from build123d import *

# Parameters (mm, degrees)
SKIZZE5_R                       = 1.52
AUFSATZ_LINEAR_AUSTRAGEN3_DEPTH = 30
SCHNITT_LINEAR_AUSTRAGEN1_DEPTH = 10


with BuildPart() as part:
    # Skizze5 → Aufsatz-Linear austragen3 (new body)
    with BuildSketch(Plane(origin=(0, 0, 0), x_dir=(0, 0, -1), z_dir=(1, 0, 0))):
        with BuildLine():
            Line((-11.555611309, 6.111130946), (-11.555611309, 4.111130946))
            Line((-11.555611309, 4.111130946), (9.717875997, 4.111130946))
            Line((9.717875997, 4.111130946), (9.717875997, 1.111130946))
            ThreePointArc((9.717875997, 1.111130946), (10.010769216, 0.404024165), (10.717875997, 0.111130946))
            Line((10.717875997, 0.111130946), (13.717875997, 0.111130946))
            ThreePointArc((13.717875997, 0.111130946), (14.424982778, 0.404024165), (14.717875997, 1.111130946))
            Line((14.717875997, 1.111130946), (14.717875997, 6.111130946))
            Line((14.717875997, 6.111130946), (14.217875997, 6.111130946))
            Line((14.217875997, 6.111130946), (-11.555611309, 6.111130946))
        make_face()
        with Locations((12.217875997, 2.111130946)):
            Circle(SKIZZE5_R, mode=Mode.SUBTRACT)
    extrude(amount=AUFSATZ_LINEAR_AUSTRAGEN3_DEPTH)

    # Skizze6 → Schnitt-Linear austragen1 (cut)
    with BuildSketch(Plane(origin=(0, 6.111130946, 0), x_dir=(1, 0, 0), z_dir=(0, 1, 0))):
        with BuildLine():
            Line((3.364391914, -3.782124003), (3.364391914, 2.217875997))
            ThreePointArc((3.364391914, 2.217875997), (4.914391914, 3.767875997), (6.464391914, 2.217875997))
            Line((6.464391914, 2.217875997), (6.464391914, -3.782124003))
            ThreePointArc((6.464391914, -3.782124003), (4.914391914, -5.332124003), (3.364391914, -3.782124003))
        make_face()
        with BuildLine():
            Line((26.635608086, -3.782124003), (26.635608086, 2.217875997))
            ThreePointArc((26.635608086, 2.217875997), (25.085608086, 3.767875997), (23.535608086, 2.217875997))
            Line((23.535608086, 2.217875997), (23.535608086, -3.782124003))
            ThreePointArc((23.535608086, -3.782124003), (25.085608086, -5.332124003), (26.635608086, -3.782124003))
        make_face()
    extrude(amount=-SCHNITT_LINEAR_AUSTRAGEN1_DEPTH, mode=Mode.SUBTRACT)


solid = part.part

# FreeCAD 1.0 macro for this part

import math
import FreeCAD as App
import Part
import Sketcher

doc = App.newDocument("Part")
params = doc.addObject("Spreadsheet::Sheet", "Params")
for row, (alias, value) in enumerate([
    ("sketch1_radius", "1 mm"),
    ("sketch1_diameter", "3.04 mm"),
    ("sketch1_width", "2 mm"),
    ("sketch1_width2", "3 mm"),
    ("pad1_length", "30 mm"),
    ("sketch2_height", "6 mm"),
    ("sketch2_radius", "1.55 mm"),
    ("pocket1_length", "10 mm"),
], start=1):
    params.set(f"A{row}", alias)
    params.set(f"B{row}", "=" + value)
    params.setAlias(f"B{row}", alias)

body = doc.addObject("PartDesign::Body", "Body")

# Sketch on YZ plane
sketch1 = body.newObject("Sketcher::SketchObject", "Sketch")
sketch1.AttachmentSupport = (doc.getObject("YZ_Plane"), [""])
sketch1.MapMode = "FlatFace"
sketch1.addGeometry([
    Part.LineSegment(App.Vector(6.1, 11.6, 0), App.Vector(4.1, 11.6, 0)),  # 0
    Part.LineSegment(App.Vector(4.1, 11.6, 0), App.Vector(4.1, -9.7, 0)),  # 1
    Part.LineSegment(App.Vector(4.1, -9.7, 0), App.Vector(1.1, -9.7, 0)),  # 2
    Part.ArcOfCircle(Part.Circle(App.Vector(1.1, -10.7, 0), App.Vector(0, 0, 1), 1), math.radians(90), math.radians(180)),  # 3
    Part.LineSegment(App.Vector(0.1, -10.7, 0), App.Vector(0.1, -13.7, 0)),  # 4
    Part.ArcOfCircle(Part.Circle(App.Vector(1.1, -13.7, 0), App.Vector(0, 0, 1), 1), math.radians(-180), math.radians(-90)),  # 5
    Part.LineSegment(App.Vector(1.1, -14.7, 0), App.Vector(6.1, -14.7, 0)),  # 6
    Part.LineSegment(App.Vector(6.1, -14.7, 0), App.Vector(6.1, 11.6, 0)),  # 7
    Part.Circle(App.Vector(2.1, -12.2, 0), App.Vector(0, 0, 1), 1.5),  # 8
], False)
sketch1.addConstraint([
    Sketcher.Constraint("Coincident", 0, 2, 1, 1),
    Sketcher.Constraint("Coincident", 1, 2, 2, 1),
    Sketcher.Constraint("Tangent", 2, 2, 3, 1),
    Sketcher.Constraint("Tangent", 3, 2, 4, 1),
    Sketcher.Constraint("Tangent", 4, 2, 5, 1),
    Sketcher.Constraint("Tangent", 5, 2, 6, 1),
    Sketcher.Constraint("Coincident", 6, 2, 7, 1),
    Sketcher.Constraint("Coincident", 7, 2, 0, 1),
    Sketcher.Constraint("Horizontal", 0),
    Sketcher.Constraint("Vertical", 1),
    Sketcher.Constraint("Horizontal", 2),
    Sketcher.Constraint("Vertical", 4),
    Sketcher.Constraint("Horizontal", 6),
    Sketcher.Constraint("Vertical", 7),
    Sketcher.Constraint("Equal", 3, 5),
    Sketcher.Constraint("Equal", 2, 4),
    Sketcher.Constraint("Radius", 3, 1.0),
    Sketcher.Constraint("Diameter", 8, 3.04),
    Sketcher.Constraint("DistanceX", 0, 2, 0, 1, 2.0),
    Sketcher.Constraint("DistanceX", 2, 2, 2, 1, 3.0),
    Sketcher.Constraint("DistanceX", 3, 3, 8, 3, 1.0),
    Sketcher.Constraint("DistanceY", 8, 3, 3, 3, 1.5),
    Sketcher.Constraint("DistanceY", 1, 2, 1, 1, 21.273487),
    Sketcher.Constraint("DistanceX", -1, 1, 3, 3, 1.111131),
    Sketcher.Constraint("DistanceY", -1, 1, 0, 2, 11.555611),
])
sketch1.setExpression("Constraints[16]", "Params.sketch1_radius")
sketch1.setExpression("Constraints[17]", "Params.sketch1_diameter")
sketch1.setExpression("Constraints[18]", "Params.sketch1_width")
sketch1.setExpression("Constraints[19]", "Params.sketch1_width2")
pad1 = body.newObject("PartDesign::Pad", "Pad")
pad1.Profile = sketch1
pad1.setExpression("Length", "Params.pad1_length")

# Sketch on XZ plane
sketch2 = body.newObject("Sketcher::SketchObject", "Sketch001")
sketch2.AttachmentSupport = (doc.getObject("XZ_Plane"), [""])
sketch2.MapMode = "FlatFace"
sketch2.AttachmentOffset = App.Placement(App.Vector(0, 0, -6.111131), App.Rotation())
sketch2.addGeometry([
    Part.LineSegment(App.Vector(3.4, -2.2, 0), App.Vector(3.4, 3.8, 0)),  # 0
    Part.ArcOfCircle(Part.Circle(App.Vector(4.9, 3.8, 0), App.Vector(0, 0, 1), 1.6), math.radians(0), math.radians(180)),  # 1
    Part.LineSegment(App.Vector(6.5, 3.8, 0), App.Vector(6.5, -2.2, 0)),  # 2
    Part.ArcOfCircle(Part.Circle(App.Vector(4.9, -2.2, 0), App.Vector(0, 0, 1), 1.6), math.radians(180), math.radians(360)),  # 3
    Part.LineSegment(App.Vector(26.6, 3.8, 0), App.Vector(26.6, -2.2, 0)),  # 4
    Part.ArcOfCircle(Part.Circle(App.Vector(25.1, -2.2, 0), App.Vector(0, 0, 1), 1.6), math.radians(180), math.radians(360)),  # 5
    Part.LineSegment(App.Vector(23.5, -2.2, 0), App.Vector(23.5, 3.8, 0)),  # 6
    Part.ArcOfCircle(Part.Circle(App.Vector(25.1, 3.8, 0), App.Vector(0, 0, 1), 1.6), math.radians(0), math.radians(180)),  # 7
], False)
sketch2.addConstraint([
    Sketcher.Constraint("Tangent", 0, 2, 1, 2),
    Sketcher.Constraint("Tangent", 1, 1, 2, 1),
    Sketcher.Constraint("Tangent", 2, 2, 3, 2),
    Sketcher.Constraint("Tangent", 3, 1, 0, 1),
    Sketcher.Constraint("Tangent", 4, 2, 5, 2),
    Sketcher.Constraint("Tangent", 5, 1, 6, 1),
    Sketcher.Constraint("Tangent", 6, 2, 7, 2),
    Sketcher.Constraint("Tangent", 7, 1, 4, 1),
    Sketcher.Constraint("Vertical", 0),
    Sketcher.Constraint("Vertical", 2),
    Sketcher.Constraint("Vertical", 4),
    Sketcher.Constraint("Vertical", 6),
    Sketcher.Constraint("Equal", 3, 5),
    Sketcher.Constraint("Horizontal", 3, 3, 5, 3),
    Sketcher.Constraint("Horizontal", 1, 3, 7, 3),
    Sketcher.Constraint("DistanceY", 0, 1, 0, 2, 6.0),
    Sketcher.Constraint("Radius", 1, 1.55),
    Sketcher.Constraint("DistanceX", -1, 1, 1, 3, 4.914392),
    Sketcher.Constraint("DistanceX", -1, 1, 5, 3, 25.085608),
    Sketcher.Constraint("DistanceY", -1, 1, 1, 3, 3.782124),
])
sketch2.setExpression("Constraints[15]", "Params.sketch2_height")
sketch2.setExpression("Constraints[16]", "Params.sketch2_radius")
pocket1 = body.newObject("PartDesign::Pocket", "Pocket")
pocket1.Profile = sketch2
pocket1.setExpression("Length", "Params.pocket1_length")
pocket1.Reversed = True

doc.recompute()
